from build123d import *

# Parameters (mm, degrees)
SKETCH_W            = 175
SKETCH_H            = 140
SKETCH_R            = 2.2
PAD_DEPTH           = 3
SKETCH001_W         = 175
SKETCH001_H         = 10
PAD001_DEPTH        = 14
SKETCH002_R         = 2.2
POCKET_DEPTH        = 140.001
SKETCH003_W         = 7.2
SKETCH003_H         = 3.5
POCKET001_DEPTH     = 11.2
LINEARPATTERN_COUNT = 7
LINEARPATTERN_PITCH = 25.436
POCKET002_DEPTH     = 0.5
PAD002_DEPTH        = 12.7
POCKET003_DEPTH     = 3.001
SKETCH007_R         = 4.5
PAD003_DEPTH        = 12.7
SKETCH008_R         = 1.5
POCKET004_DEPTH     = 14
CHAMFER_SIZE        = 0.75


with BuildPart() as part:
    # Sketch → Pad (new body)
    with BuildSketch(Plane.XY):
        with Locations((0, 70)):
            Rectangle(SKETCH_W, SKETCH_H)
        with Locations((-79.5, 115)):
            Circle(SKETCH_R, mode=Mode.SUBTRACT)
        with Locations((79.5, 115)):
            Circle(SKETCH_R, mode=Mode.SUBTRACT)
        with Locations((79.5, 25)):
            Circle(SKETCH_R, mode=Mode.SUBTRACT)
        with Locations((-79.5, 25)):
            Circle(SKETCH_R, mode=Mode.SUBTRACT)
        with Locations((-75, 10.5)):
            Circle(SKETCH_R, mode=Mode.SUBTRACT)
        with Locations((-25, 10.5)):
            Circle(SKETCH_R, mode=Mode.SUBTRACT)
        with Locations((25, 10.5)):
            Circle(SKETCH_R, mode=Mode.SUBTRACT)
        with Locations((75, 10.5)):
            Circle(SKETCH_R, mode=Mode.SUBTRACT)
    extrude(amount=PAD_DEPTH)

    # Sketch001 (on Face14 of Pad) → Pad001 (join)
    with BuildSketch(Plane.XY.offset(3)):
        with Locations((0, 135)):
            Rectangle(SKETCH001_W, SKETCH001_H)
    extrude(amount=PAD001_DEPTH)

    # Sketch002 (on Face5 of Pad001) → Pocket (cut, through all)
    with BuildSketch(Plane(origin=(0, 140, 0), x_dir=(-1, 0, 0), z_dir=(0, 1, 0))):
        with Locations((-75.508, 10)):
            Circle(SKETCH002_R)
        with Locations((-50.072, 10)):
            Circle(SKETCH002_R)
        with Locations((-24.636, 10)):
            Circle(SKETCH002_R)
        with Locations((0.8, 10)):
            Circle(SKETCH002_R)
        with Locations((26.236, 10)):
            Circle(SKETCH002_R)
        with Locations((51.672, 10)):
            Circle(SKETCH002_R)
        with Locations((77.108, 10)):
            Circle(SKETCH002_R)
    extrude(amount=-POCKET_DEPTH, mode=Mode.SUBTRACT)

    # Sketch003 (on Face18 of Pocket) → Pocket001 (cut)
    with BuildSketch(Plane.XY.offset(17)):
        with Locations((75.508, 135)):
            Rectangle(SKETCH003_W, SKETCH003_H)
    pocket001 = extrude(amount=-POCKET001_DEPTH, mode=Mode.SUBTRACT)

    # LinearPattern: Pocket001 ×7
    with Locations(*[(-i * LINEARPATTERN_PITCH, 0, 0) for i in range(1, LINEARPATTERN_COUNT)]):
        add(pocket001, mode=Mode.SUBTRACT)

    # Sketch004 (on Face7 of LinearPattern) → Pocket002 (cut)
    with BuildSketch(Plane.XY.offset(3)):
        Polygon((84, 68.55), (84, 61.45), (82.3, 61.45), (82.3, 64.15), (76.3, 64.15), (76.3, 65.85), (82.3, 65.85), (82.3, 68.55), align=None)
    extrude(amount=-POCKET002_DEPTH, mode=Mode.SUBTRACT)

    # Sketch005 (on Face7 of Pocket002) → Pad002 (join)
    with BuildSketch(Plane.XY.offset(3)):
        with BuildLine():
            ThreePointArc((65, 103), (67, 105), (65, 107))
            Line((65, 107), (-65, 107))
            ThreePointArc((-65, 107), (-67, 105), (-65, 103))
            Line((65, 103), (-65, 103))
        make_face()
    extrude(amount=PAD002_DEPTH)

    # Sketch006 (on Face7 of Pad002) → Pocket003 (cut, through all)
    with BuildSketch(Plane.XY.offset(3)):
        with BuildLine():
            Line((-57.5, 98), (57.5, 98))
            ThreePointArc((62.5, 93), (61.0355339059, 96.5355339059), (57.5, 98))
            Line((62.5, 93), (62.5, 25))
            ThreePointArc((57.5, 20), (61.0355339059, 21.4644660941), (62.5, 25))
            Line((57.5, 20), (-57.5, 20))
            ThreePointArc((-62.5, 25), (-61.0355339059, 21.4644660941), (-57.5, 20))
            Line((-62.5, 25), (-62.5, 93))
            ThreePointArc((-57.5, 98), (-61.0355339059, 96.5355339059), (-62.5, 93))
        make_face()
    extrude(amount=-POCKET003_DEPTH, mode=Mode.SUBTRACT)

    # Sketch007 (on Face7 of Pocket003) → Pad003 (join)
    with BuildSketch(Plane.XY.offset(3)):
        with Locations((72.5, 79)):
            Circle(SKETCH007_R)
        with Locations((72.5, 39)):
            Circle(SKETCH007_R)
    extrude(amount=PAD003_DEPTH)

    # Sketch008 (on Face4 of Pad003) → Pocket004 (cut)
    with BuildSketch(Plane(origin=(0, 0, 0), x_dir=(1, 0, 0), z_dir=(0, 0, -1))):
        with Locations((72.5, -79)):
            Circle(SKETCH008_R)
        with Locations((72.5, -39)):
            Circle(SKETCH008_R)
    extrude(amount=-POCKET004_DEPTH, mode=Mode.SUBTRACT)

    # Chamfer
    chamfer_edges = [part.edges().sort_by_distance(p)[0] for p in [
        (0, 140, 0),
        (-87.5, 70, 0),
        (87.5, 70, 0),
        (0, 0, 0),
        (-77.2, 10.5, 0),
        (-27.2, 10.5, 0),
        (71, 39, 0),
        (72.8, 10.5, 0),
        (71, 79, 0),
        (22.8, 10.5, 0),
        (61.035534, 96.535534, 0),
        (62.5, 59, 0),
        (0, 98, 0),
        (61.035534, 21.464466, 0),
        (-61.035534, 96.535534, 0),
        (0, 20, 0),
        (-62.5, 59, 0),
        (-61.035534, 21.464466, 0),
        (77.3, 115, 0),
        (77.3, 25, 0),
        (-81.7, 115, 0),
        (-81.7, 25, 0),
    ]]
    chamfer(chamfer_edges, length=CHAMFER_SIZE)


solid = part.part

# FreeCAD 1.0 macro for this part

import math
import FreeCAD as App
import Part
import Sketcher

V = App.Vector
Q = App.Units.Quantity


def edges_at(feature, points):
    """Names of the edges that pass closest to the given points."""
    edges = feature.Shape.Edges
    near = lambda p: min(range(len(edges)), key=lambda i: edges[i].distToShape(Part.Vertex(*p))[0])
    return sorted({f"Edge{near(p) + 1}" for p in points})


def add_polygon(sketch, points):
    """Adds a closed chain of lines whose ends are joined by coincident constraints."""
    first, n = sketch.GeometryCount, len(points)
    for a, b in zip(points, points[1:] + points[:1]):
        sketch.addGeometry(Part.LineSegment(App.Vector(*a, 0), App.Vector(*b, 0)), False)
    for i in range(n):
        sketch.addConstraint(Sketcher.Constraint("Coincident", first + i, 2, first + (i + 1) % n, 1))

doc = App.newDocument("Part")
params = doc.addObject("Spreadsheet::Sheet", "Params")
for row, (alias, value) in enumerate([
    ("sketch1_diameter", "4.4 mm"),
    ("sketch1_width", "175 mm"),
    ("sketch1_height", "140 mm"),
    ("pad1_length", "3 mm"),
    ("sketch2_width", "175 mm"),
    ("sketch2_height", "10 mm"),
    ("pad2_length", "14 mm"),
    ("sketch3_diameter", "4.4 mm"),
    ("sketch4_width", "7.2 mm"),
    ("sketch4_height", "3.5 mm"),
    ("pocket2_length", "11.2 mm"),
    ("linearpattern_pitch", "25.436 mm"),
    ("sketch5_width", "6 mm"),
    ("sketch5_width2", "1.7 mm"),
    ("sketch5_height", "7.1 mm"),
    ("pocket3_length", "0.5 mm"),
    ("sketch6_radius", "2 mm"),
    ("sketch6_width", "130 mm"),
    ("pad3_length", "12.7 mm"),
    ("sketch7_radius", "5 mm"),
    ("sketch7_width", "115 mm"),
    ("sketch7_height", "68 mm"),
    ("sketch8_diameter", "9 mm"),
    ("pad4_length", "12.7 mm"),
    ("sketch9_diameter", "3 mm"),
    ("pocket5_length", "14 mm"),
    ("chamfer_size", "0.75 mm"),
], start=1):
    params.set(f"A{row}", alias)
    params.set(f"B{row}", "=" + value)
    params.setAlias(f"B{row}", alias)

body = doc.addObject("PartDesign::Body", "Body")

sketch1 = body.newObject("Sketcher::SketchObject", "Sketch")
sketch1.AttachmentSupport = (doc.getObject("XY_Plane"), [""])
sketch1.MapMode = "FlatFace"
add_polygon(sketch1, [(-87.5, 140), (-87.5, 0), (87.5, 0), (87.5, 140)])
sketch1.addGeometry(Part.Circle(V(-75, 10.5, 0), V(0, 0, 1), 2.2), False)
sketch1.addGeometry(Part.Circle(V(-79.5, 25, 0), V(0, 0, 1), 2.2), False)
sketch1.addGeometry(Part.Circle(V(-25, 10.5, 0), V(0, 0, 1), 2.2), False)
sketch1.addGeometry(Part.Circle(V(25, 10.5, 0), V(0, 0, 1), 2.2), False)
sketch1.addGeometry(Part.Circle(V(75, 10.5, 0), V(0, 0, 1), 2.2), False)
sketch1.addGeometry(Part.Circle(V(79.5, 25, 0), V(0, 0, 1), 2.2), False)
sketch1.addGeometry(Part.Circle(V(-79.5, 115, 0), V(0, 0, 1), 2.2), False)
sketch1.addGeometry(Part.Circle(V(79.5, 115, 0), V(0, 0, 1), 2.2), False)
sketch1.addConstraint([
    Sketcher.Constraint("Vertical", 0),
    Sketcher.Constraint("Horizontal", 1),
    Sketcher.Constraint("Vertical", 2),
    Sketcher.Constraint("Horizontal", 3),
    Sketcher.Constraint("Equal", 4, 5),
    Sketcher.Constraint("Equal", 5, 6),
    Sketcher.Constraint("Equal", 6, 7),
    Sketcher.Constraint("Equal", 7, 8),
    Sketcher.Constraint("Equal", 8, 9),
    Sketcher.Constraint("Equal", 9, 10),
    Sketcher.Constraint("Equal", 10, 11),
    Sketcher.Constraint("Symmetric", 0, 2, 1, 2, -1, 1),
    Sketcher.Constraint("Symmetric", 6, 3, 7, 3, -2),
    Sketcher.Constraint("Symmetric", 4, 3, 8, 3, -2),
    Sketcher.Constraint("Symmetric", 5, 3, 9, 3, -2),
    Sketcher.Constraint("Symmetric", 10, 3, 11, 3, -2),
    Sketcher.Constraint("Horizontal", 4, 3, 6, 3),
    Sketcher.Constraint("Vertical", 5, 3, 10, 3),
    Sketcher.Constraint("Diameter", 4, Q("4.4 mm")),
    Sketcher.Constraint("DistanceX", 1, 1, 1, 2, Q("175 mm")),
    Sketcher.Constraint("DistanceY", 0, 2, 0, 1, Q("140 mm")),
    Sketcher.Constraint("DistanceX", 4, 3, -1, 1, Q("75 mm")),
    Sketcher.Constraint("DistanceY", -1, 1, 5, 3, Q("25 mm")),
    Sketcher.Constraint("DistanceX", 6, 3, -1, 1, Q("25 mm")),
    Sketcher.Constraint("DistanceY", -1, 1, 10, 3, Q("115 mm")),
    Sketcher.Constraint("DistanceX", 5, 3, 9, 3, Q("159 mm")),
    Sketcher.Constraint("DistanceY", -1, 1, 4, 3, Q("10.5 mm")),
])
sketch1.setExpression("Constraints[22]", "Params.sketch1_diameter")
sketch1.setExpression("Constraints[23]", "Params.sketch1_width")
sketch1.setExpression("Constraints[24]", "Params.sketch1_height")
pad1 = body.newObject("PartDesign::Pad", "Pad")
pad1.Profile = sketch1
pad1.setExpression("Length", "Params.pad1_length")

sketch2 = body.newObject("Sketcher::SketchObject", "Sketch001")
sketch2.AttachmentSupport = (doc.getObject("XY_Plane"), [""])
sketch2.MapMode = "FlatFace"
sketch2.AttachmentOffset = App.Placement(V(0, 0, 3), App.Rotation())
add_polygon(sketch2, [(-88, 140), (-88, 130), (88, 130), (88, 140)])
sketch2.addConstraint([
    Sketcher.Constraint("Vertical", 0),
    Sketcher.Constraint("Horizontal", 1),
    Sketcher.Constraint("Vertical", 2),
    Sketcher.Constraint("Horizontal", 3),
    Sketcher.Constraint("DistanceX", 1, 1, 1, 2, Q("175 mm")),
    Sketcher.Constraint("DistanceY", 0, 2, 0, 1, Q("10 mm")),
    Sketcher.Constraint("DistanceY", -1, 1, 0, 2, Q("130 mm")),
    Sketcher.Constraint("DistanceX", 0, 2, -1, 1, Q("87.5 mm")),
])
sketch2.setExpression("Constraints[8]", "Params.sketch2_width")
sketch2.setExpression("Constraints[9]", "Params.sketch2_height")
pad2 = body.newObject("PartDesign::Pad", "Pad001")
pad2.Profile = sketch2
pad2.setExpression("Length", "Params.pad2_length")

sketch3 = body.newObject("Sketcher::SketchObject", "Sketch002")
sketch3.AttachmentSupport = (doc.getObject("XZ_Plane"), [""])
sketch3.MapMode = "FlatFace"
sketch3.AttachmentOffset = App.Placement(V(0, 0, -140), App.Rotation())
sketch3.addGeometry([
    Part.Circle(V(75.5, 10, 0), V(0, 0, 1), 2.2),
    Part.Circle(V(50.1, 10, 0), V(0, 0, 1), 2.2),
    Part.Circle(V(24.6, 10, 0), V(0, 0, 1), 2.2),
    Part.Circle(V(-0.8, 10, 0), V(0, 0, 1), 2.2),
    Part.Circle(V(-26.2, 10, 0), V(0, 0, 1), 2.2),
    Part.Circle(V(-51.7, 10, 0), V(0, 0, 1), 2.2),
    Part.Circle(V(-77.1, 10, 0), V(0, 0, 1), 2.2),
], False)
sketch3.addConstraint([
    Sketcher.Constraint("Equal", 0, 1),
    Sketcher.Constraint("Equal", 1, 2),
    Sketcher.Constraint("Equal", 2, 3),
    Sketcher.Constraint("Equal", 3, 4),
    Sketcher.Constraint("Equal", 4, 5),
    Sketcher.Constraint("Equal", 5, 6),
    Sketcher.Constraint("Horizontal", 0, 3, 1, 3),
    Sketcher.Constraint("Horizontal", 1, 3, 2, 3),
    Sketcher.Constraint("Horizontal", 2, 3, 3, 3),
    Sketcher.Constraint("Horizontal", 3, 3, 4, 3),
    Sketcher.Constraint("Horizontal", 4, 3, 5, 3),
    Sketcher.Constraint("Horizontal", 5, 3, 6, 3),
    Sketcher.Constraint("Diameter", 0, Q("4.4 mm")),
    Sketcher.Constraint("DistanceY", -1, 1, 0, 3, Q("10 mm")),
    Sketcher.Constraint("DistanceX", 3, 3, -1, 1, Q("0.8 mm")),
    Sketcher.Constraint("DistanceX", 5, 3, 0, 3, Q("127.18 mm")),
    Sketcher.Constraint("DistanceX", 6, 3, 1, 3, Q("127.18 mm")),
    Sketcher.Constraint("DistanceX", -1, 1, 0, 3, Q("75.508 mm")),
    Sketcher.Constraint("DistanceX", -1, 1, 1, 3, Q("50.072 mm")),
    Sketcher.Constraint("DistanceX", -1, 1, 2, 3, Q("24.636 mm")),
    Sketcher.Constraint("DistanceX", 4, 3, -1, 1, Q("26.236 mm")),
])
sketch3.setExpression("Constraints[12]", "Params.sketch3_diameter")
pocket1 = body.newObject("PartDesign::Pocket", "Pocket")
pocket1.Profile = sketch3
pocket1.Type = "ThroughAll"
pocket1.Reversed = True

sketch4 = body.newObject("Sketcher::SketchObject", "Sketch003")
sketch4.AttachmentSupport = (doc.getObject("XY_Plane"), [""])
sketch4.MapMode = "FlatFace"
sketch4.AttachmentOffset = App.Placement(V(0, 0, 17), App.Rotation())
add_polygon(sketch4, [(71.9, 136.8), (71.9, 133.2), (79.1, 133.2), (79.1, 136.8)])
sketch4.addConstraint([
    Sketcher.Constraint("Vertical", 0),
    Sketcher.Constraint("Horizontal", 1),
    Sketcher.Constraint("Vertical", 2),
    Sketcher.Constraint("Horizontal", 3),
    Sketcher.Constraint("DistanceX", 1, 1, 1, 2, Q("7.2 mm")),
    Sketcher.Constraint("DistanceY", 0, 2, 0, 1, Q("3.5 mm")),
    Sketcher.Constraint("DistanceY", -1, 1, 0, 2, Q("133.25 mm")),
    Sketcher.Constraint("DistanceX", -1, 1, 0, 2, Q("71.908 mm")),
])
sketch4.setExpression("Constraints[8]", "Params.sketch4_width")
sketch4.setExpression("Constraints[9]", "Params.sketch4_height")
pocket2 = body.newObject("PartDesign::Pocket", "Pocket001")
pocket2.Profile = sketch4
pocket2.setExpression("Length", "Params.pocket2_length")
doc.recompute()

linearpattern = body.newObject("PartDesign::LinearPattern", "LinearPattern")
linearpattern.Originals = [pocket2]
linearpattern.Direction = (doc.getObject("X_Axis"), [""])
linearpattern.Mode = "offset"
linearpattern.setExpression("Offset", "Params.linearpattern_pitch")
linearpattern.Occurrences = 7
linearpattern.Reversed = True
body.Tip = linearpattern

sketch5 = body.newObject("Sketcher::SketchObject", "Sketch004")
sketch5.AttachmentSupport = (doc.getObject("XY_Plane"), [""])
sketch5.MapMode = "FlatFace"
sketch5.AttachmentOffset = App.Placement(V(0, 0, 3), App.Rotation())
add_polygon(sketch5, [(84, 61.5), (84, 68.5), (82.3, 68.5), (82.3, 65.8), (76.3, 65.8), (76.3, 64.2), (82.3, 64.2), (82.3, 61.5)])
sketch5.addConstraint([
    Sketcher.Constraint("Vertical", 0),
    Sketcher.Constraint("Horizontal", 1),
    Sketcher.Constraint("Vertical", 2),
    Sketcher.Constraint("Horizontal", 3),
    Sketcher.Constraint("Vertical", 4),
    Sketcher.Constraint("Horizontal", 5),
    Sketcher.Constraint("Vertical", 6),
    Sketcher.Constraint("Horizontal", 7),
    Sketcher.Constraint("Vertical", 2, 2, 5, 2),
    Sketcher.Constraint("Equal", 7, 4),
    Sketcher.Constraint("Equal", 2, 6),
    Sketcher.Constraint("DistanceX", 3, 2, 3, 1, Q("6 mm")),
    Sketcher.Constraint("DistanceX", 1, 2, 1, 1, Q("1.7 mm")),
    Sketcher.Constraint("DistanceY", 0, 1, 0, 2, Q("7.1 mm")),
    Sketcher.Constraint("DistanceX", -1, 1, 0, 2, Q("84 mm")),
    Sketcher.Constraint("DistanceY", -1, 1, 0, 2, Q("68.55 mm")),
])
sketch5.setExpression("Constraints[19]", "Params.sketch5_width")
sketch5.setExpression("Constraints[20]", "Params.sketch5_width2")
sketch5.setExpression("Constraints[21]", "Params.sketch5_height")
pocket3 = body.newObject("PartDesign::Pocket", "Pocket002")
pocket3.Profile = sketch5
pocket3.setExpression("Length", "Params.pocket3_length")

sketch6 = body.newObject("Sketcher::SketchObject", "Sketch005")
sketch6.AttachmentSupport = (doc.getObject("XY_Plane"), [""])
sketch6.MapMode = "FlatFace"
sketch6.AttachmentOffset = App.Placement(V(0, 0, 3), App.Rotation())
sketch6.addGeometry([
    Part.ArcOfCircle(Part.Circle(V(65, 105, 0), V(0, 0, 1), 2), math.radians(-90), math.radians(90)),
    Part.LineSegment(V(65, 107, 0), V(-65, 107, 0)),
    Part.ArcOfCircle(Part.Circle(V(-65, 105, 0), V(0, 0, 1), 2), math.radians(90), math.radians(270)),
    Part.LineSegment(V(-65, 103, 0), V(65, 103, 0)),
], False)
sketch6.addConstraint([
    Sketcher.Constraint("Tangent", 0, 2, 1, 1),
    Sketcher.Constraint("Tangent", 1, 2, 2, 1),
    Sketcher.Constraint("Tangent", 2, 2, 3, 1),
    Sketcher.Constraint("Tangent", 3, 2, 0, 1),
    Sketcher.Constraint("Horizontal", 1),
    Sketcher.Constraint("Horizontal", 3),
    Sketcher.Constraint("Radius", 0, Q("2 mm")),
    Sketcher.Constraint("DistanceX", 1, 2, 1, 1, Q("130 mm")),
    Sketcher.Constraint("DistanceX", -1, 1, 0, 3, Q("65 mm")),
    Sketcher.Constraint("DistanceY", -1, 1, 0, 3, Q("105 mm")),
])
sketch6.setExpression("Constraints[6]", "Params.sketch6_radius")
sketch6.setExpression("Constraints[7]", "Params.sketch6_width")
pad3 = body.newObject("PartDesign::Pad", "Pad002")
pad3.Profile = sketch6
pad3.setExpression("Length", "Params.pad3_length")

sketch7 = body.newObject("Sketcher::SketchObject", "Sketch006")
sketch7.AttachmentSupport = (doc.getObject("XY_Plane"), [""])
sketch7.MapMode = "FlatFace"
sketch7.AttachmentOffset = App.Placement(V(0, 0, 3), App.Rotation())
sketch7.addGeometry([
    Part.LineSegment(V(58, 98, 0), V(-58, 98, 0)),
    Part.ArcOfCircle(Part.Circle(V(-58, 93, 0), V(0, 0, 1), 5), math.radians(90), math.radians(180)),
    Part.LineSegment(V(-62, 93, 0), V(-62, 25, 0)),
    Part.ArcOfCircle(Part.Circle(V(-58, 25, 0), V(0, 0, 1), 5), math.radians(180), math.radians(270)),
    Part.LineSegment(V(-58, 20, 0), V(58, 20, 0)),
    Part.ArcOfCircle(Part.Circle(V(58, 25, 0), V(0, 0, 1), 5), math.radians(-90), math.radians(0)),
    Part.LineSegment(V(62, 25, 0), V(62, 93, 0)),
    Part.ArcOfCircle(Part.Circle(V(58, 93, 0), V(0, 0, 1), 5), math.radians(0), math.radians(90)),
], False)
sketch7.addConstraint([
    Sketcher.Constraint("Tangent", 0, 2, 1, 1),
    Sketcher.Constraint("Tangent", 1, 2, 2, 1),
    Sketcher.Constraint("Tangent", 2, 2, 3, 1),
    Sketcher.Constraint("Tangent", 3, 2, 4, 1),
    Sketcher.Constraint("Tangent", 4, 2, 5, 1),
    Sketcher.Constraint("Tangent", 5, 2, 6, 1),
    Sketcher.Constraint("Tangent", 6, 2, 7, 1),
    Sketcher.Constraint("Tangent", 7, 2, 0, 1),
    Sketcher.Constraint("Horizontal", 0),
    Sketcher.Constraint("Vertical", 2),
    Sketcher.Constraint("Horizontal", 4),
    Sketcher.Constraint("Vertical", 6),
    Sketcher.Constraint("Equal", 1, 3),
    Sketcher.Constraint("Equal", 3, 5),
    Sketcher.Constraint("Equal", 5, 7),
    Sketcher.Constraint("Radius", 1, Q("5 mm")),
    Sketcher.Constraint("DistanceX", 0, 2, 0, 1, Q("115 mm")),
    Sketcher.Constraint("DistanceY", 2, 2, 2, 1, Q("68 mm")),
    Sketcher.Constraint("DistanceY", -1, 1, 1, 3, Q("93 mm")),
    Sketcher.Constraint("DistanceX", 1, 3, -1, 1, Q("57.5 mm")),
])
sketch7.setExpression("Constraints[15]", "Params.sketch7_radius")
sketch7.setExpression("Constraints[16]", "Params.sketch7_width")
sketch7.setExpression("Constraints[17]", "Params.sketch7_height")
pocket4 = body.newObject("PartDesign::Pocket", "Pocket003")
pocket4.Profile = sketch7
pocket4.Type = "ThroughAll"

sketch8 = body.newObject("Sketcher::SketchObject", "Sketch007")
sketch8.AttachmentSupport = (doc.getObject("XY_Plane"), [""])
sketch8.MapMode = "FlatFace"
sketch8.AttachmentOffset = App.Placement(V(0, 0, 3), App.Rotation())
sketch8.addGeometry([
    Part.Circle(V(72.5, 79, 0), V(0, 0, 1), 4.5),
    Part.Circle(V(72.5, 39, 0), V(0, 0, 1), 4.5),
], False)
sketch8.addConstraint([
    Sketcher.Constraint("Equal", 0, 1),
    Sketcher.Constraint("Vertical", 0, 3, 1, 3),
    Sketcher.Constraint("Diameter", 0, Q("9 mm")),
    Sketcher.Constraint("DistanceY", -1, 1, 0, 3, Q("79 mm")),
    Sketcher.Constraint("DistanceY", -1, 1, 1, 3, Q("39 mm")),
    Sketcher.Constraint("DistanceX", -1, 1, 0, 3, Q("72.5 mm")),
])
sketch8.setExpression("Constraints[2]", "Params.sketch8_diameter")
pad4 = body.newObject("PartDesign::Pad", "Pad003")
pad4.Profile = sketch8
pad4.setExpression("Length", "Params.pad4_length")

sketch9 = body.newObject("Sketcher::SketchObject", "Sketch008")
sketch9.AttachmentSupport = (doc.getObject("XY_Plane"), [""])
sketch9.MapMode = "FlatFace"
sketch9.addGeometry([
    Part.Circle(V(72.5, 79, 0), V(0, 0, 1), 1.5),
    Part.Circle(V(72.5, 39, 0), V(0, 0, 1), 1.5),
], False)
sketch9.addConstraint([
    Sketcher.Constraint("Equal", 0, 1),
    Sketcher.Constraint("Vertical", 0, 3, 1, 3),
    Sketcher.Constraint("Diameter", 0, Q("3 mm")),
    Sketcher.Constraint("DistanceY", -1, 1, 0, 3, Q("79 mm")),
    Sketcher.Constraint("DistanceY", -1, 1, 1, 3, Q("39 mm")),
    Sketcher.Constraint("DistanceX", -1, 1, 0, 3, Q("72.5 mm")),
])
sketch9.setExpression("Constraints[2]", "Params.sketch9_diameter")
pocket5 = body.newObject("PartDesign::Pocket", "Pocket004")
pocket5.Profile = sketch9
pocket5.setExpression("Length", "Params.pocket5_length")
pocket5.Reversed = True
doc.recompute()

chamfer = body.newObject("PartDesign::Chamfer", "Chamfer")
chamfer.Base = (pocket5, edges_at(pocket5, [
    (0, 140, 0),
    (-87.5, 70, 0),
    (87.5, 70, 0),
    (0, 0, 0),
    (-77.2, 10.5, 0),
    (-27.2, 10.5, 0),
    (71, 39, 0),
    (72.8, 10.5, 0),
    (71, 79, 0),
    (22.8, 10.5, 0),
    (61.036, 96.536, 0),
    (62.5, 59, 0),
    (0, 98, 0),
    (61.036, 21.464, 0),
    (-61.036, 96.536, 0),
    (0, 20, 0),
    (-62.5, 59, 0),
    (-61.036, 21.464, 0),
    (77.3, 115, 0),
    (77.3, 25, 0),
    (-81.7, 115, 0),
    (-81.7, 25, 0),
]))
chamfer.setExpression("Size", "Params.chamfer_size")

doc.recompute()
